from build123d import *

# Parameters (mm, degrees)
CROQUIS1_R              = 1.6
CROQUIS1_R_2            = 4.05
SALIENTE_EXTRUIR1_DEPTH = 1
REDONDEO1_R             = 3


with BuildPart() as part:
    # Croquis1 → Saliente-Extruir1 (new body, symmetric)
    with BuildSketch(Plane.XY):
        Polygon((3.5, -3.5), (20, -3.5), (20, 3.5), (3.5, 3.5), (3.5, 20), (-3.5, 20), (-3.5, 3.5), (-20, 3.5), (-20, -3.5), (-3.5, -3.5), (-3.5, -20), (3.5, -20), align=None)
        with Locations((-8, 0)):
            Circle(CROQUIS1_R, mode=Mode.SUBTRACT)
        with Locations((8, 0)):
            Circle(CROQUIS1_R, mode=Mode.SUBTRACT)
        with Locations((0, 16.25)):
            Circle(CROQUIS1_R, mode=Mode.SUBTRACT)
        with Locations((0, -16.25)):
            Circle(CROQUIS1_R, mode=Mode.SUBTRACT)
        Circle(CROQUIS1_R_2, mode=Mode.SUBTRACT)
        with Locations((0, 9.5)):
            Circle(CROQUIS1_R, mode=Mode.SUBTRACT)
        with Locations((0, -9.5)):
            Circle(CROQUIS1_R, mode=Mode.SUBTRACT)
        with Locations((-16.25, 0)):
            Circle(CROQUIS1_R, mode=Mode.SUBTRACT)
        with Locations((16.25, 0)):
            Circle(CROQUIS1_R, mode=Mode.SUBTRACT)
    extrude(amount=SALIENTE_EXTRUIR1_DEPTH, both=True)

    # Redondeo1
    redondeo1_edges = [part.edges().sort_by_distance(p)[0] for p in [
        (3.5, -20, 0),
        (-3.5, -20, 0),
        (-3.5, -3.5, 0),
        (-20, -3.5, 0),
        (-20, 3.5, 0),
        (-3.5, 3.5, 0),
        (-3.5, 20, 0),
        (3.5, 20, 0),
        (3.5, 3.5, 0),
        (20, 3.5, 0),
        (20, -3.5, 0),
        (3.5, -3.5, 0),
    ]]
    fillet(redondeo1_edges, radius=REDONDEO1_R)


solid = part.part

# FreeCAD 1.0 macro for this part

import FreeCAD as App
import Part
import Sketcher
from FreeCAD import Vector


def edges_at(feature, points):
    """Names of the edges that pass closest to the given points."""
    edges = feature.Shape.Edges
    near = lambda p: min(range(len(edges)), key=lambda i: edges[i].distToShape(Part.Vertex(*p))[0])
    return sorted({f"Edge{near(p) + 1}" for p in points})


def add_polygon(sketch, points):
    """Adds a closed chain of lines whose ends are joined by coincident constraints."""
    first, n = sketch.GeometryCount, len(points)
    for a, b in zip(points, points[1:] + points[:1]):
        sketch.addGeometry(Part.LineSegment(App.Vector(*a, 0), App.Vector(*b, 0)), False)
    for i in range(n):
        sketch.addConstraint(Sketcher.Constraint("Coincident", first + i, 2, first + (i + 1) % n, 1))

doc = App.newDocument("Part")
body = doc.addObject("PartDesign::Body", "Body")

# Sketch on XY plane
sketch1 = body.newObject("Sketcher::SketchObject", "Sketch")
sketch1.AttachmentSupport = (doc.getObject("XY_Plane"), [""])
sketch1.MapMode = "FlatFace"
add_polygon(sketch1, [(3.5, -3.5), (20, -3.5), (20, 3.5), (3.5, 3.5), (3.5, 20), (-3.5, 20), (-3.5, 3.5), (-20, 3.5), (-20, -3.5), (-3.5, -3.5), (-3.5, -20), (3.5, -20)])  # lines 0-11
sketch1.addGeometry(Part.Circle(Vector(0, -16.25, 0), Vector(0, 0, 1), 1.6), False)  # 12
sketch1.addGeometry(Part.Circle(Vector(0, -9.5, 0), Vector(0, 0, 1), 1.6), False)  # 13
sketch1.addGeometry(Part.Circle(Vector(-16.25, 0, 0), Vector(0, 0, 1), 1.6), False)  # 14
sketch1.addGeometry(Part.Circle(Vector(-8, 0, 0), Vector(0, 0, 1), 1.6), False)  # 15
sketch1.addGeometry(Part.Circle(Vector(0, 0, 0), Vector(0, 0, 1), 4.05), False)  # 16
sketch1.addGeometry(Part.Circle(Vector(8, 0, 0), Vector(0, 0, 1), 1.6), False)  # 17
sketch1.addGeometry(Part.Circle(Vector(16.25, 0, 0), Vector(0, 0, 1), 1.6), False)  # 18
sketch1.addGeometry(Part.Circle(Vector(0, 9.5, 0), Vector(0, 0, 1), 1.6), False)  # 19
sketch1.addGeometry(Part.Circle(Vector(0, 16.25, 0), Vector(0, 0, 1), 1.6), False)  # 20
sketch1.addConstraint([
    Sketcher.Constraint("Horizontal", 0),
    Sketcher.Constraint("Vertical", 1),
    Sketcher.Constraint("Horizontal", 2),
    Sketcher.Constraint("Vertical", 3),
    Sketcher.Constraint("Horizontal", 4),
    Sketcher.Constraint("Vertical", 5),
    Sketcher.Constraint("Horizontal", 6),
    Sketcher.Constraint("Vertical", 7),
    Sketcher.Constraint("Horizontal", 8),
    Sketcher.Constraint("Vertical", 9),
    Sketcher.Constraint("Horizontal", 10),
    Sketcher.Constraint("Vertical", 11),
    Sketcher.Constraint("Coincident", 16, 3, -1, 1),
    Sketcher.Constraint("Equal", 12, 13),
    Sketcher.Constraint("Equal", 13, 14),
    Sketcher.Constraint("Equal", 14, 15),
    Sketcher.Constraint("Equal", 15, 17),
    Sketcher.Constraint("Equal", 17, 18),
    Sketcher.Constraint("Equal", 18, 19),
    Sketcher.Constraint("Equal", 19, 20),
    Sketcher.Constraint("Symmetric", 15, 3, 17, 3, -1, 1),
    Sketcher.Constraint("Symmetric", 14, 3, 18, 3, -1, 1),
    Sketcher.Constraint("Symmetric", 13, 3, 19, 3, -1, 1),
    Sketcher.Constraint("Symmetric", 12, 3, 20, 3, -1, 1),
    Sketcher.Constraint("Symmetric", 0, 2, 6, 2, -1, 1),
    Sketcher.Constraint("Symmetric", 2, 2, 8, 2, -1, 1),
    Sketcher.Constraint("Symmetric", 4, 2, 10, 2, -1, 1),
    Sketcher.Constraint("Symmetric", 2, 2, 5, 2, -2),
    Sketcher.Constraint("PointOnObject", 12, 3, -2),
    Sketcher.Constraint("PointOnObject", 13, 3, -2),
    Sketcher.Constraint("PointOnObject", 14, 3, -1),
    Sketcher.Constraint("PointOnObject", 15, 3, -1),
    Sketcher.Constraint("Equal", 10, 1),
    Sketcher.Constraint("Equal", 8, 3),
    Sketcher.Constraint("Diameter", 12, 3.2),
    Sketcher.Constraint("Diameter", 16, 8.1),
    Sketcher.Constraint("DistanceX", 4, 2, 4, 1, 7.0),
    Sketcher.Constraint("DistanceX", 0, 1, 0, 2, 16.5),
    Sketcher.Constraint("DistanceX", 15, 3, -1, 1, 8.0),
    Sketcher.Constraint("DistanceY", 13, 3, 0, 2, 6.0),
    Sketcher.Constraint("DistanceY", 12, 3, -1, 1, 16.25),
    Sketcher.Constraint("DistanceX", 14, 3, -1, 1, 16.25),
])
pad1 = body.newObject("PartDesign::Pad", "Pad")
pad1.Profile = sketch1
pad1.Length = 2
pad1.Midplane = True
doc.recompute()

fillet = body.newObject("PartDesign::Fillet", "Fillet")
fillet.Base = (pad1, edges_at(pad1, [
    (3.5, -20, 0),
    (-3.5, -20, 0),
    (-3.5, -3.5, 0),
    (-20, -3.5, 0),
    (-20, 3.5, 0),
    (-3.5, 3.5, 0),
    (-3.5, 20, 0),
    (3.5, 20, 0),
    (3.5, 3.5, 0),
    (20, 3.5, 0),
    (20, -3.5, 0),
    (3.5, -3.5, 0),
]))
fillet.Radius = 3

doc.recompute()
